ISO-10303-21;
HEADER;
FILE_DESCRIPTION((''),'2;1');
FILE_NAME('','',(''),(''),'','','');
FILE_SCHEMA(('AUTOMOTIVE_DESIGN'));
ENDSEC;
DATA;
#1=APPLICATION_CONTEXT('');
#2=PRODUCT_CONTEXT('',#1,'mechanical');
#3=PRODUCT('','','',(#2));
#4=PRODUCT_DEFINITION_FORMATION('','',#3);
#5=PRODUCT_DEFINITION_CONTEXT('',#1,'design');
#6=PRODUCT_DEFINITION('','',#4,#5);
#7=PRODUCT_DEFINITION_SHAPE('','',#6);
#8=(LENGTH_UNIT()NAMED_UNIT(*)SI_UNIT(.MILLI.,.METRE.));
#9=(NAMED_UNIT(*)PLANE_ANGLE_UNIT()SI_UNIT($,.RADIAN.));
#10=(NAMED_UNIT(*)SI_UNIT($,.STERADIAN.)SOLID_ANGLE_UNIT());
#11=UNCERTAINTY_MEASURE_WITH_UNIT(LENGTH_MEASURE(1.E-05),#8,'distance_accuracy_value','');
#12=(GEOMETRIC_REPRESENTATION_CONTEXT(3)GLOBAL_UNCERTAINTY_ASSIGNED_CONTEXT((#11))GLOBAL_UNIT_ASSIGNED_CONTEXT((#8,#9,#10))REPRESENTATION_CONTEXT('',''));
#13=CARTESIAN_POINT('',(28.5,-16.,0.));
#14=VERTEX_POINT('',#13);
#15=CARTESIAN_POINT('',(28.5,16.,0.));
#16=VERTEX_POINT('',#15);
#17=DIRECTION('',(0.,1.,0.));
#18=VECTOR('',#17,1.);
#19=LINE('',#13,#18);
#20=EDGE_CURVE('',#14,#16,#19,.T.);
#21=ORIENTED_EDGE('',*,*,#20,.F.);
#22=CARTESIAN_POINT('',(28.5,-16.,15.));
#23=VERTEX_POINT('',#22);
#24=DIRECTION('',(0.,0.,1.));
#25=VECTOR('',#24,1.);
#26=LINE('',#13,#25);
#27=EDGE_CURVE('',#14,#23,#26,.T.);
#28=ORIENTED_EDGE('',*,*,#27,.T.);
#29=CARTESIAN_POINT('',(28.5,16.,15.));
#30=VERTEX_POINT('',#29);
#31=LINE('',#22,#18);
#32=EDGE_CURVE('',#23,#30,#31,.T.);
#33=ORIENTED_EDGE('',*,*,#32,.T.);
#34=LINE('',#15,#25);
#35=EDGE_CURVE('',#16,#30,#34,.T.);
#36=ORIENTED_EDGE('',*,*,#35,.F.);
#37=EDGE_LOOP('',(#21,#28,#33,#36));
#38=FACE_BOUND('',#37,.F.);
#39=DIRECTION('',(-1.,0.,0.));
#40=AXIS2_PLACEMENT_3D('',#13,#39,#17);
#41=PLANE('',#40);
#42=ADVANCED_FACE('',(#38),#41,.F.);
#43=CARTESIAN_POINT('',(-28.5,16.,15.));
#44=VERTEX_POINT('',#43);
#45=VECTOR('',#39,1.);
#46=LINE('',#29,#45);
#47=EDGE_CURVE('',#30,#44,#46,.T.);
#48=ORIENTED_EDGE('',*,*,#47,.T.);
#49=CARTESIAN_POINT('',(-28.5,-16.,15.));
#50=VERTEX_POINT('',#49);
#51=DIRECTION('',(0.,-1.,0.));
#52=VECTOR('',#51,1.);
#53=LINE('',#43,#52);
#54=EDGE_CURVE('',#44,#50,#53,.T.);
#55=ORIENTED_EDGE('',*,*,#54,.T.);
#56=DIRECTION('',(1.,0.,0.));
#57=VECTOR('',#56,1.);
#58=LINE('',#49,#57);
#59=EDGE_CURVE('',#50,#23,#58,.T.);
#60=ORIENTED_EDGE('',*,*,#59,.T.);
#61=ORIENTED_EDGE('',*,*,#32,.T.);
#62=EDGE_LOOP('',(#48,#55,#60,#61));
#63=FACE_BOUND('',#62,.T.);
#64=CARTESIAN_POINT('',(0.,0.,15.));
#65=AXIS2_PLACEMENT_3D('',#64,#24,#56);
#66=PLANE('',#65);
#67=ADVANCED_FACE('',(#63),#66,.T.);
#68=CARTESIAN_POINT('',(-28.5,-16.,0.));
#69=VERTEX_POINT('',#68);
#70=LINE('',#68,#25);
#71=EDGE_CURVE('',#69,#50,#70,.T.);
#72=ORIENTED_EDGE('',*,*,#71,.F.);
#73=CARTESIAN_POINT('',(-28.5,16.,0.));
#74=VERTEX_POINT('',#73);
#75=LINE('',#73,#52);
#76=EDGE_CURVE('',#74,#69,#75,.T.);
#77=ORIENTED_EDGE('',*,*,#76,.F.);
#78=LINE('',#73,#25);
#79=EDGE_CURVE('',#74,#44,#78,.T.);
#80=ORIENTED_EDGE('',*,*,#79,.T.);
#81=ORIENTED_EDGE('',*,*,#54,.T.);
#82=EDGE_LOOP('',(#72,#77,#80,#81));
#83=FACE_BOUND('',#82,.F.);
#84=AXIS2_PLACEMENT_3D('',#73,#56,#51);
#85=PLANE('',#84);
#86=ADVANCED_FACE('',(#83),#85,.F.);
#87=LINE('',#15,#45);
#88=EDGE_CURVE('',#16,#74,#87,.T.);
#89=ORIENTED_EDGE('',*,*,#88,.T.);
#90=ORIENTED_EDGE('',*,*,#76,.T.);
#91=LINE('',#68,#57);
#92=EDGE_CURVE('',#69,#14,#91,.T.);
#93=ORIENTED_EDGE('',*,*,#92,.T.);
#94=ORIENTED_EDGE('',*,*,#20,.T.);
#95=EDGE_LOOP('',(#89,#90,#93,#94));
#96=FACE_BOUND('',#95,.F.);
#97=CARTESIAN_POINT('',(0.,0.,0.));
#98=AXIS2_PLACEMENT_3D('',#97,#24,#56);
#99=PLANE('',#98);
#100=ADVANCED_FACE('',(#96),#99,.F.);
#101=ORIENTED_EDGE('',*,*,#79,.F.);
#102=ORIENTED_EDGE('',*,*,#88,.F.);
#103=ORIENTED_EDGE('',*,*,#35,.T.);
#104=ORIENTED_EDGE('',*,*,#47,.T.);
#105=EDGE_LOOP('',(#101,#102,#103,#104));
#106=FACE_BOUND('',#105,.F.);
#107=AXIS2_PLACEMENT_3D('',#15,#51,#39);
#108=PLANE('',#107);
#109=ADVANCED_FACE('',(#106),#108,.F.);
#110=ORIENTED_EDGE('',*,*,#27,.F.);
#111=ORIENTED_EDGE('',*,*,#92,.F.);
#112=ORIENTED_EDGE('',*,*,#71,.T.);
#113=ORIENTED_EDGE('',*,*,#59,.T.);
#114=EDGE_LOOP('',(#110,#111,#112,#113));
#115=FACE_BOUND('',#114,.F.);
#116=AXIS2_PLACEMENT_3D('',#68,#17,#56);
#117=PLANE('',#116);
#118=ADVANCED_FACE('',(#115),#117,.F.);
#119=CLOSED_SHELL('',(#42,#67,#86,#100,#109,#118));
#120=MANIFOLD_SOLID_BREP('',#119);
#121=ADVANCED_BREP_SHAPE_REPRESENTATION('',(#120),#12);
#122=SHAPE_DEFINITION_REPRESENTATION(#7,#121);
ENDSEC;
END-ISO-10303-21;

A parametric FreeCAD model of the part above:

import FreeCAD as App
import Part
import Sketcher
Q = App.Units.Quantity

doc = App.newDocument("Part")
body = doc.addObject("PartDesign::Body", "Body")

sketch1 = body.newObject("Sketcher::SketchObject", "Sketch")
sketch1.AttachmentSupport = (doc.getObject("XY_Plane"), [""])
sketch1.MapMode = "FlatFace"
sketch1.addGeometry(Part.LineSegment(App.Vector(-28.5, 16, 0), App.Vector(-28.5, -16, 0)), False)
sketch1.addGeometry(Part.LineSegment(App.Vector(-28.5, -16, 0), App.Vector(28.5, -16, 0)), False)
sketch1.addGeometry(Part.LineSegment(App.Vector(28.5, -16, 0), App.Vector(28.5, 16, 0)), False)
sketch1.addGeometry(Part.LineSegment(App.Vector(28.5, 16, 0), App.Vector(-28.5, 16, 0)), False)
sketch1.addConstraint(Sketcher.Constraint("Coincident", 0, 2, 1, 1))
sketch1.addConstraint(Sketcher.Constraint("Coincident", 1, 2, 2, 1))
sketch1.addConstraint(Sketcher.Constraint("Coincident", 2, 2, 3, 1))
sketch1.addConstraint(Sketcher.Constraint("Coincident", 3, 2, 0, 1))
sketch1.addConstraint(Sketcher.Constraint("Vertical", 0))
sketch1.addConstraint(Sketcher.Constraint("Horizontal", 1))
sketch1.addConstraint(Sketcher.Constraint("Vertical", 2))
sketch1.addConstraint(Sketcher.Constraint("Horizontal", 3))
sketch1.addConstraint(Sketcher.Constraint("Symmetric", 0, 2, 2, 2, -1, 1))
sketch1.addConstraint(Sketcher.Constraint("DistanceX", 1, 1, 1, 2, Q("57 mm")))
sketch1.addConstraint(Sketcher.Constraint("DistanceY", 0, 2, 0, 1, Q("32 mm")))
pad1 = body.newObject("PartDesign::Pad", "Pad")
pad1.Profile = sketch1
pad1.Length = 15

doc.recompute()
